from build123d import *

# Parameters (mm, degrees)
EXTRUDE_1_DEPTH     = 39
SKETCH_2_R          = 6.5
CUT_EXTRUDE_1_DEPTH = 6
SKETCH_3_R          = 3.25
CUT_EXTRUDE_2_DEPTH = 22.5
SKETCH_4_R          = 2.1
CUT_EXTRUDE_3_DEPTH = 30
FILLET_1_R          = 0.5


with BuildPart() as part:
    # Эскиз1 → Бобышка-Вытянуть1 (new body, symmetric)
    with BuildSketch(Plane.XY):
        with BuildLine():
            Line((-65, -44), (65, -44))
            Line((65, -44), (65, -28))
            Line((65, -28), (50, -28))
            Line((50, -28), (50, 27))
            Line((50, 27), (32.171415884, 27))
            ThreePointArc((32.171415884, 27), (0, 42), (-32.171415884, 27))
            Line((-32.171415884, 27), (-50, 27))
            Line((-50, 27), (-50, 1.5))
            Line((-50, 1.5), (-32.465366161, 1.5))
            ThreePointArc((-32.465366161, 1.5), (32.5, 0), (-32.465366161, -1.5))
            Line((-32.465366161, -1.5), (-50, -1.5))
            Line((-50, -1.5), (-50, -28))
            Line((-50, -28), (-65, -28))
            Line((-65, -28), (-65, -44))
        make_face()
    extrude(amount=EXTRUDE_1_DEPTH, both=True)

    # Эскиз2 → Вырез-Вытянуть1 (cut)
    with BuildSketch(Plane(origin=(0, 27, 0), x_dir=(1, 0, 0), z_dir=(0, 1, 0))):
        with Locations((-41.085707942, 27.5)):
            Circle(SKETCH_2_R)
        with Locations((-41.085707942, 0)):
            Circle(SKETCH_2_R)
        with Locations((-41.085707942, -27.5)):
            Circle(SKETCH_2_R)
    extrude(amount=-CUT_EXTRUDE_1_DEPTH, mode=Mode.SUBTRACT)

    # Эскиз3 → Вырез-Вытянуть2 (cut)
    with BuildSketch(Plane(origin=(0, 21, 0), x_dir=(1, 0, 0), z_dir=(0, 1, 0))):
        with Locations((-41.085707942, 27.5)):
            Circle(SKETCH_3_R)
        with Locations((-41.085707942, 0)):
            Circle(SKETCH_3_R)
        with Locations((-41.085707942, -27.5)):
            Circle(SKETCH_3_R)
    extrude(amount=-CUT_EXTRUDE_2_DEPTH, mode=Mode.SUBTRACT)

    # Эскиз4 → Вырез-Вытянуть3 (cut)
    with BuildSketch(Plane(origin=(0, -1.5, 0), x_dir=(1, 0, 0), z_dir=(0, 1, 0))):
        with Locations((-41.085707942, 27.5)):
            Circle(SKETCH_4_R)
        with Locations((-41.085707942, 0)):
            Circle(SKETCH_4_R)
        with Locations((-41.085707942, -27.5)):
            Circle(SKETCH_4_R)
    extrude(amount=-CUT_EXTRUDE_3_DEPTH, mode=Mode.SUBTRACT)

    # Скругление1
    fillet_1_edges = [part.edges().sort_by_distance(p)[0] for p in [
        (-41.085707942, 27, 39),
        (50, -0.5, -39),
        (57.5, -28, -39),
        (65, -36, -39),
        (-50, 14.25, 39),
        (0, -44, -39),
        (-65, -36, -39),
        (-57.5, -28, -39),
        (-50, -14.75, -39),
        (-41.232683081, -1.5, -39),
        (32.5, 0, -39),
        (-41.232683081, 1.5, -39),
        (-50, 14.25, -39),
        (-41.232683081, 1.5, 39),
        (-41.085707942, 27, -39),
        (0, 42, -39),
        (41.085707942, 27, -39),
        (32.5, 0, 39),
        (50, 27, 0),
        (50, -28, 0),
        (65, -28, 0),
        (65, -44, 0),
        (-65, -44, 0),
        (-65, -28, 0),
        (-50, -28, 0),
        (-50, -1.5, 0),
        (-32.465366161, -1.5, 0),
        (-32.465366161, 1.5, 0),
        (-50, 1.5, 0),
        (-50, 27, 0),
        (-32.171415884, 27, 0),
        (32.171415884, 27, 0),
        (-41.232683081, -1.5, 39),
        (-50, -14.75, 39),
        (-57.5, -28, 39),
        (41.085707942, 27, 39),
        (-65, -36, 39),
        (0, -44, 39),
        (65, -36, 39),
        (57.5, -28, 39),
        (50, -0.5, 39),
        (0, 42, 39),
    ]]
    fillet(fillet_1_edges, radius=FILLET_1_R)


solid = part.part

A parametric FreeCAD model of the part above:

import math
import FreeCAD as App
import Part
import Sketcher

V = App.Vector


def edges_at(feature, points):
    """Names of the edges that pass closest to the given points."""
    edges = feature.Shape.Edges
    near = lambda p: min(range(len(edges)), key=lambda i: edges[i].distToShape(Part.Vertex(*p))[0])
    return sorted({f"Edge{near(p) + 1}" for p in points})

doc = App.newDocument("Part")
body = doc.addObject("PartDesign::Body", "Body")

# Sketch on XY plane
sketch1 = doc.addObject("Sketcher::SketchObject", "Sketch")
body.addObject(sketch1)
sketch1.AttachmentSupport = (doc.XY_Plane, [""])
sketch1.MapMode = "FlatFace"
sketch1.addGeometry([
    Part.LineSegment(V(-65, -44, 0), V(65, -44, 0)),  # 0
    Part.LineSegment(V(65, -44, 0), V(65, -28, 0)),  # 1
    Part.LineSegment(V(65, -28, 0), V(50, -28, 0)),  # 2
    Part.LineSegment(V(50, -28, 0), V(50, 27, 0)),  # 3
    Part.LineSegment(V(50, 27, 0), V(32.171416, 27, 0)),  # 4
    Part.ArcOfCircle(Part.Circle(V(0, 0, 0), V(0, 0, 1), 42), math.radians(40.005201), math.radians(139.994799)),  # 5
    Part.LineSegment(V(-32.171416, 27, 0), V(-50, 27, 0)),  # 6
    Part.LineSegment(V(-50, 27, 0), V(-50, 1.5, 0)),  # 7
    Part.LineSegment(V(-50, 1.5, 0), V(-32.465366, 1.5, 0)),  # 8
    Part.ArcOfCircle(Part.Circle(V(0, 0, 0), V(0, 0, 1), 32.5), math.radians(-177.35464), math.radians(177.35464)),  # 9
    Part.LineSegment(V(-32.465366, -1.5, 0), V(-50, -1.5, 0)),  # 10
    Part.LineSegment(V(-50, -1.5, 0), V(-50, -28, 0)),  # 11
    Part.LineSegment(V(-50, -28, 0), V(-65, -28, 0)),  # 12
    Part.LineSegment(V(-65, -28, 0), V(-65, -44, 0)),  # 13
], False)
sketch1.addConstraint([
    Sketcher.Constraint("Coincident", 0, 2, 1, 1),
    Sketcher.Constraint("Coincident", 1, 2, 2, 1),
    Sketcher.Constraint("Coincident", 2, 2, 3, 1),
    Sketcher.Constraint("Coincident", 3, 2, 4, 1),
    Sketcher.Constraint("Coincident", 4, 2, 5, 1),
    Sketcher.Constraint("Coincident", 5, 2, 6, 1),
    Sketcher.Constraint("Coincident", 6, 2, 7, 1),
    Sketcher.Constraint("Coincident", 7, 2, 8, 1),
    Sketcher.Constraint("Coincident", 8, 2, 9, 2),
    Sketcher.Constraint("Coincident", 9, 1, 10, 1),
    Sketcher.Constraint("Coincident", 10, 2, 11, 1),
    Sketcher.Constraint("Coincident", 11, 2, 12, 1),
    Sketcher.Constraint("Coincident", 12, 2, 13, 1),
    Sketcher.Constraint("Coincident", 13, 2, 0, 1),
    Sketcher.Constraint("Horizontal", 0),
    Sketcher.Constraint("Vertical", 1),
    Sketcher.Constraint("Horizontal", 2),
    Sketcher.Constraint("Vertical", 3),
    Sketcher.Constraint("Horizontal", 4),
    Sketcher.Constraint("Horizontal", 6),
    Sketcher.Constraint("Vertical", 7),
    Sketcher.Constraint("Horizontal", 8),
    Sketcher.Constraint("Horizontal", 10),
    Sketcher.Constraint("Vertical", 11),
    Sketcher.Constraint("Horizontal", 12),
    Sketcher.Constraint("Vertical", 13),
    Sketcher.Constraint("Coincident", 5, 3, -1, 1),
    Sketcher.Constraint("Coincident", 9, 3, -1, 1),
    Sketcher.Constraint("Symmetric", 3, 2, 6, 2, -2),
    Sketcher.Constraint("Symmetric", 2, 2, 11, 2, -2),
    Sketcher.Constraint("Vertical", 8, 2, 9, 1),
    Sketcher.Constraint("Equal", 2, 12),
    Sketcher.Constraint("Radius", 5, 42.0),
    Sketcher.Constraint("Radius", 9, 32.5),
    Sketcher.Constraint("DistanceX", 0, 1, 0, 2, 130.0),
    Sketcher.Constraint("DistanceX", 2, 2, 2, 1, 15.0),
    Sketcher.Constraint("DistanceY", 1, 1, 1, 2, 16.0),
    Sketcher.Constraint("DistanceY", 3, 1, 3, 2, 55.0),
    Sketcher.Constraint("DistanceY", 7, 2, 7, 1, 25.5),
    Sketcher.Constraint("DistanceY", 11, 2, 11, 1, 26.5),
])
pad1 = doc.addObject("PartDesign::Pad", "Pad")
body.addObject(pad1)
pad1.Profile = sketch1
pad1.Length = 78
pad1.Midplane = True

# Sketch on XZ plane
sketch2 = doc.addObject("Sketcher::SketchObject", "Sketch001")
body.addObject(sketch2)
sketch2.AttachmentSupport = (doc.XZ_Plane, [""])
sketch2.MapMode = "FlatFace"
sketch2.AttachmentOffset = App.Placement(V(0, 0, -27), App.Rotation())
sketch2.addGeometry([
    Part.Circle(V(-41.085708, -27.5, 0), V(0, 0, 1), 6.5),
    Part.Circle(V(-41.085708, 0, 0), V(0, 0, 1), 6.5),
    Part.Circle(V(-41.085708, 27.5, 0), V(0, 0, 1), 6.5),
], False)
sketch2.addConstraint([
    Sketcher.Constraint("Equal", 0, 1),
    Sketcher.Constraint("Equal", 1, 2),
    Sketcher.Constraint("Symmetric", 0, 3, 2, 3, -1),
    Sketcher.Constraint("PointOnObject", 1, 3, -1),
    Sketcher.Constraint("Vertical", 0, 3, 1, 3),
    Sketcher.Constraint("Diameter", 0, 13.0),
    Sketcher.Constraint("DistanceY", 0, 3, 2, 3, 55.0),
    Sketcher.Constraint("DistanceX", 0, 3, -1, 1, 41.085708),
])
pocket1 = doc.addObject("PartDesign::Pocket", "Pocket")
body.addObject(pocket1)
pocket1.Profile = sketch2
pocket1.Length = 6
pocket1.Reversed = True

# Sketch on XZ plane
sketch3 = doc.addObject("Sketcher::SketchObject", "Sketch002")
body.addObject(sketch3)
sketch3.AttachmentSupport = (doc.XZ_Plane, [""])
sketch3.MapMode = "FlatFace"
sketch3.AttachmentOffset = App.Placement(V(0, 0, -21), App.Rotation())
sketch3.addGeometry([
    Part.Circle(V(-41.085708, -27.5, 0), V(0, 0, 1), 3.25),
    Part.Circle(V(-41.085708, 0, 0), V(0, 0, 1), 3.25),
    Part.Circle(V(-41.085708, 27.5, 0), V(0, 0, 1), 3.25),
], False)
sketch3.addConstraint([
    Sketcher.Constraint("Equal", 0, 1),
    Sketcher.Constraint("Equal", 1, 2),
    Sketcher.Constraint("Symmetric", 0, 3, 2, 3, -1),
    Sketcher.Constraint("PointOnObject", 1, 3, -1),
    Sketcher.Constraint("Vertical", 0, 3, 1, 3),
    Sketcher.Constraint("Diameter", 0, 6.5),
    Sketcher.Constraint("DistanceY", 0, 3, 2, 3, 55.0),
    Sketcher.Constraint("DistanceX", 0, 3, -1, 1, 41.085708),
])
pocket2 = doc.addObject("PartDesign::Pocket", "Pocket001")
body.addObject(pocket2)
pocket2.Profile = sketch3
pocket2.Length = 22.5
pocket2.Reversed = True

# Sketch on XZ plane
sketch4 = doc.addObject("Sketcher::SketchObject", "Sketch003")
body.addObject(sketch4)
sketch4.AttachmentSupport = (doc.XZ_Plane, [""])
sketch4.MapMode = "FlatFace"
sketch4.AttachmentOffset = App.Placement(V(0, 0, 1.5), App.Rotation())
sketch4.addGeometry([
    Part.Circle(V(-41.085708, -27.5, 0), V(0, 0, 1), 2.1),
    Part.Circle(V(-41.085708, 0, 0), V(0, 0, 1), 2.1),
    Part.Circle(V(-41.085708, 27.5, 0), V(0, 0, 1), 2.1),
], False)
sketch4.addConstraint([
    Sketcher.Constraint("Equal", 0, 1),
    Sketcher.Constraint("Equal", 1, 2),
    Sketcher.Constraint("Symmetric", 0, 3, 2, 3, -1),
    Sketcher.Constraint("PointOnObject", 1, 3, -1),
    Sketcher.Constraint("Vertical", 0, 3, 1, 3),
    Sketcher.Constraint("Diameter", 0, 4.2),
    Sketcher.Constraint("DistanceY", 0, 3, 2, 3, 55.0),
    Sketcher.Constraint("DistanceX", 0, 3, -1, 1, 41.085708),
])
pocket3 = doc.addObject("PartDesign::Pocket", "Pocket002")
body.addObject(pocket3)
pocket3.Profile = sketch4
pocket3.Length = 30
pocket3.Reversed = True
doc.recompute()

fillet = doc.addObject("PartDesign::Fillet", "Fillet")
body.addObject(fillet)
fillet.Base = (pocket3, edges_at(pocket3, [
    (-41.086, 27, 39),
    (50, -0.5, -39),
    (57.5, -28, -39),
    (65, -36, -39),
    (-50, 14.25, 39),
    (0, -44, -39),
    (-65, -36, -39),
    (-57.5, -28, -39),
    (-50, -14.75, -39),
    (-41.233, -1.5, -39),
    (32.5, 0, -39),
    (-41.233, 1.5, -39),
    (-50, 14.25, -39),
    (-41.233, 1.5, 39),
    (-41.086, 27, -39),
    (0, 42, -39),
    (41.086, 27, -39),
    (32.5, 0, 39),
    (50, 27, 0),
    (50, -28, 0),
    (65, -28, 0),
    (65, -44, 0),
    (-65, -44, 0),
    (-65, -28, 0),
    (-50, -28, 0),
    (-50, -1.5, 0),
    (-32.465, -1.5, 0),
    (-32.465, 1.5, 0),
    (-50, 1.5, 0),
    (-50, 27, 0),
    (-32.171, 27, 0),
    (32.171, 27, 0),
    (-41.233, -1.5, 39),
    (-50, -14.75, 39),
    (-57.5, -28, 39),
    (41.086, 27, 39),
    (-65, -36, 39),
    (0, -44, 39),
    (65, -36, 39),
    (57.5, -28, 39),
    (50, -0.5, 39),
    (0, 42, 39),
]))
fillet.Radius = 0.5

doc.recompute()
